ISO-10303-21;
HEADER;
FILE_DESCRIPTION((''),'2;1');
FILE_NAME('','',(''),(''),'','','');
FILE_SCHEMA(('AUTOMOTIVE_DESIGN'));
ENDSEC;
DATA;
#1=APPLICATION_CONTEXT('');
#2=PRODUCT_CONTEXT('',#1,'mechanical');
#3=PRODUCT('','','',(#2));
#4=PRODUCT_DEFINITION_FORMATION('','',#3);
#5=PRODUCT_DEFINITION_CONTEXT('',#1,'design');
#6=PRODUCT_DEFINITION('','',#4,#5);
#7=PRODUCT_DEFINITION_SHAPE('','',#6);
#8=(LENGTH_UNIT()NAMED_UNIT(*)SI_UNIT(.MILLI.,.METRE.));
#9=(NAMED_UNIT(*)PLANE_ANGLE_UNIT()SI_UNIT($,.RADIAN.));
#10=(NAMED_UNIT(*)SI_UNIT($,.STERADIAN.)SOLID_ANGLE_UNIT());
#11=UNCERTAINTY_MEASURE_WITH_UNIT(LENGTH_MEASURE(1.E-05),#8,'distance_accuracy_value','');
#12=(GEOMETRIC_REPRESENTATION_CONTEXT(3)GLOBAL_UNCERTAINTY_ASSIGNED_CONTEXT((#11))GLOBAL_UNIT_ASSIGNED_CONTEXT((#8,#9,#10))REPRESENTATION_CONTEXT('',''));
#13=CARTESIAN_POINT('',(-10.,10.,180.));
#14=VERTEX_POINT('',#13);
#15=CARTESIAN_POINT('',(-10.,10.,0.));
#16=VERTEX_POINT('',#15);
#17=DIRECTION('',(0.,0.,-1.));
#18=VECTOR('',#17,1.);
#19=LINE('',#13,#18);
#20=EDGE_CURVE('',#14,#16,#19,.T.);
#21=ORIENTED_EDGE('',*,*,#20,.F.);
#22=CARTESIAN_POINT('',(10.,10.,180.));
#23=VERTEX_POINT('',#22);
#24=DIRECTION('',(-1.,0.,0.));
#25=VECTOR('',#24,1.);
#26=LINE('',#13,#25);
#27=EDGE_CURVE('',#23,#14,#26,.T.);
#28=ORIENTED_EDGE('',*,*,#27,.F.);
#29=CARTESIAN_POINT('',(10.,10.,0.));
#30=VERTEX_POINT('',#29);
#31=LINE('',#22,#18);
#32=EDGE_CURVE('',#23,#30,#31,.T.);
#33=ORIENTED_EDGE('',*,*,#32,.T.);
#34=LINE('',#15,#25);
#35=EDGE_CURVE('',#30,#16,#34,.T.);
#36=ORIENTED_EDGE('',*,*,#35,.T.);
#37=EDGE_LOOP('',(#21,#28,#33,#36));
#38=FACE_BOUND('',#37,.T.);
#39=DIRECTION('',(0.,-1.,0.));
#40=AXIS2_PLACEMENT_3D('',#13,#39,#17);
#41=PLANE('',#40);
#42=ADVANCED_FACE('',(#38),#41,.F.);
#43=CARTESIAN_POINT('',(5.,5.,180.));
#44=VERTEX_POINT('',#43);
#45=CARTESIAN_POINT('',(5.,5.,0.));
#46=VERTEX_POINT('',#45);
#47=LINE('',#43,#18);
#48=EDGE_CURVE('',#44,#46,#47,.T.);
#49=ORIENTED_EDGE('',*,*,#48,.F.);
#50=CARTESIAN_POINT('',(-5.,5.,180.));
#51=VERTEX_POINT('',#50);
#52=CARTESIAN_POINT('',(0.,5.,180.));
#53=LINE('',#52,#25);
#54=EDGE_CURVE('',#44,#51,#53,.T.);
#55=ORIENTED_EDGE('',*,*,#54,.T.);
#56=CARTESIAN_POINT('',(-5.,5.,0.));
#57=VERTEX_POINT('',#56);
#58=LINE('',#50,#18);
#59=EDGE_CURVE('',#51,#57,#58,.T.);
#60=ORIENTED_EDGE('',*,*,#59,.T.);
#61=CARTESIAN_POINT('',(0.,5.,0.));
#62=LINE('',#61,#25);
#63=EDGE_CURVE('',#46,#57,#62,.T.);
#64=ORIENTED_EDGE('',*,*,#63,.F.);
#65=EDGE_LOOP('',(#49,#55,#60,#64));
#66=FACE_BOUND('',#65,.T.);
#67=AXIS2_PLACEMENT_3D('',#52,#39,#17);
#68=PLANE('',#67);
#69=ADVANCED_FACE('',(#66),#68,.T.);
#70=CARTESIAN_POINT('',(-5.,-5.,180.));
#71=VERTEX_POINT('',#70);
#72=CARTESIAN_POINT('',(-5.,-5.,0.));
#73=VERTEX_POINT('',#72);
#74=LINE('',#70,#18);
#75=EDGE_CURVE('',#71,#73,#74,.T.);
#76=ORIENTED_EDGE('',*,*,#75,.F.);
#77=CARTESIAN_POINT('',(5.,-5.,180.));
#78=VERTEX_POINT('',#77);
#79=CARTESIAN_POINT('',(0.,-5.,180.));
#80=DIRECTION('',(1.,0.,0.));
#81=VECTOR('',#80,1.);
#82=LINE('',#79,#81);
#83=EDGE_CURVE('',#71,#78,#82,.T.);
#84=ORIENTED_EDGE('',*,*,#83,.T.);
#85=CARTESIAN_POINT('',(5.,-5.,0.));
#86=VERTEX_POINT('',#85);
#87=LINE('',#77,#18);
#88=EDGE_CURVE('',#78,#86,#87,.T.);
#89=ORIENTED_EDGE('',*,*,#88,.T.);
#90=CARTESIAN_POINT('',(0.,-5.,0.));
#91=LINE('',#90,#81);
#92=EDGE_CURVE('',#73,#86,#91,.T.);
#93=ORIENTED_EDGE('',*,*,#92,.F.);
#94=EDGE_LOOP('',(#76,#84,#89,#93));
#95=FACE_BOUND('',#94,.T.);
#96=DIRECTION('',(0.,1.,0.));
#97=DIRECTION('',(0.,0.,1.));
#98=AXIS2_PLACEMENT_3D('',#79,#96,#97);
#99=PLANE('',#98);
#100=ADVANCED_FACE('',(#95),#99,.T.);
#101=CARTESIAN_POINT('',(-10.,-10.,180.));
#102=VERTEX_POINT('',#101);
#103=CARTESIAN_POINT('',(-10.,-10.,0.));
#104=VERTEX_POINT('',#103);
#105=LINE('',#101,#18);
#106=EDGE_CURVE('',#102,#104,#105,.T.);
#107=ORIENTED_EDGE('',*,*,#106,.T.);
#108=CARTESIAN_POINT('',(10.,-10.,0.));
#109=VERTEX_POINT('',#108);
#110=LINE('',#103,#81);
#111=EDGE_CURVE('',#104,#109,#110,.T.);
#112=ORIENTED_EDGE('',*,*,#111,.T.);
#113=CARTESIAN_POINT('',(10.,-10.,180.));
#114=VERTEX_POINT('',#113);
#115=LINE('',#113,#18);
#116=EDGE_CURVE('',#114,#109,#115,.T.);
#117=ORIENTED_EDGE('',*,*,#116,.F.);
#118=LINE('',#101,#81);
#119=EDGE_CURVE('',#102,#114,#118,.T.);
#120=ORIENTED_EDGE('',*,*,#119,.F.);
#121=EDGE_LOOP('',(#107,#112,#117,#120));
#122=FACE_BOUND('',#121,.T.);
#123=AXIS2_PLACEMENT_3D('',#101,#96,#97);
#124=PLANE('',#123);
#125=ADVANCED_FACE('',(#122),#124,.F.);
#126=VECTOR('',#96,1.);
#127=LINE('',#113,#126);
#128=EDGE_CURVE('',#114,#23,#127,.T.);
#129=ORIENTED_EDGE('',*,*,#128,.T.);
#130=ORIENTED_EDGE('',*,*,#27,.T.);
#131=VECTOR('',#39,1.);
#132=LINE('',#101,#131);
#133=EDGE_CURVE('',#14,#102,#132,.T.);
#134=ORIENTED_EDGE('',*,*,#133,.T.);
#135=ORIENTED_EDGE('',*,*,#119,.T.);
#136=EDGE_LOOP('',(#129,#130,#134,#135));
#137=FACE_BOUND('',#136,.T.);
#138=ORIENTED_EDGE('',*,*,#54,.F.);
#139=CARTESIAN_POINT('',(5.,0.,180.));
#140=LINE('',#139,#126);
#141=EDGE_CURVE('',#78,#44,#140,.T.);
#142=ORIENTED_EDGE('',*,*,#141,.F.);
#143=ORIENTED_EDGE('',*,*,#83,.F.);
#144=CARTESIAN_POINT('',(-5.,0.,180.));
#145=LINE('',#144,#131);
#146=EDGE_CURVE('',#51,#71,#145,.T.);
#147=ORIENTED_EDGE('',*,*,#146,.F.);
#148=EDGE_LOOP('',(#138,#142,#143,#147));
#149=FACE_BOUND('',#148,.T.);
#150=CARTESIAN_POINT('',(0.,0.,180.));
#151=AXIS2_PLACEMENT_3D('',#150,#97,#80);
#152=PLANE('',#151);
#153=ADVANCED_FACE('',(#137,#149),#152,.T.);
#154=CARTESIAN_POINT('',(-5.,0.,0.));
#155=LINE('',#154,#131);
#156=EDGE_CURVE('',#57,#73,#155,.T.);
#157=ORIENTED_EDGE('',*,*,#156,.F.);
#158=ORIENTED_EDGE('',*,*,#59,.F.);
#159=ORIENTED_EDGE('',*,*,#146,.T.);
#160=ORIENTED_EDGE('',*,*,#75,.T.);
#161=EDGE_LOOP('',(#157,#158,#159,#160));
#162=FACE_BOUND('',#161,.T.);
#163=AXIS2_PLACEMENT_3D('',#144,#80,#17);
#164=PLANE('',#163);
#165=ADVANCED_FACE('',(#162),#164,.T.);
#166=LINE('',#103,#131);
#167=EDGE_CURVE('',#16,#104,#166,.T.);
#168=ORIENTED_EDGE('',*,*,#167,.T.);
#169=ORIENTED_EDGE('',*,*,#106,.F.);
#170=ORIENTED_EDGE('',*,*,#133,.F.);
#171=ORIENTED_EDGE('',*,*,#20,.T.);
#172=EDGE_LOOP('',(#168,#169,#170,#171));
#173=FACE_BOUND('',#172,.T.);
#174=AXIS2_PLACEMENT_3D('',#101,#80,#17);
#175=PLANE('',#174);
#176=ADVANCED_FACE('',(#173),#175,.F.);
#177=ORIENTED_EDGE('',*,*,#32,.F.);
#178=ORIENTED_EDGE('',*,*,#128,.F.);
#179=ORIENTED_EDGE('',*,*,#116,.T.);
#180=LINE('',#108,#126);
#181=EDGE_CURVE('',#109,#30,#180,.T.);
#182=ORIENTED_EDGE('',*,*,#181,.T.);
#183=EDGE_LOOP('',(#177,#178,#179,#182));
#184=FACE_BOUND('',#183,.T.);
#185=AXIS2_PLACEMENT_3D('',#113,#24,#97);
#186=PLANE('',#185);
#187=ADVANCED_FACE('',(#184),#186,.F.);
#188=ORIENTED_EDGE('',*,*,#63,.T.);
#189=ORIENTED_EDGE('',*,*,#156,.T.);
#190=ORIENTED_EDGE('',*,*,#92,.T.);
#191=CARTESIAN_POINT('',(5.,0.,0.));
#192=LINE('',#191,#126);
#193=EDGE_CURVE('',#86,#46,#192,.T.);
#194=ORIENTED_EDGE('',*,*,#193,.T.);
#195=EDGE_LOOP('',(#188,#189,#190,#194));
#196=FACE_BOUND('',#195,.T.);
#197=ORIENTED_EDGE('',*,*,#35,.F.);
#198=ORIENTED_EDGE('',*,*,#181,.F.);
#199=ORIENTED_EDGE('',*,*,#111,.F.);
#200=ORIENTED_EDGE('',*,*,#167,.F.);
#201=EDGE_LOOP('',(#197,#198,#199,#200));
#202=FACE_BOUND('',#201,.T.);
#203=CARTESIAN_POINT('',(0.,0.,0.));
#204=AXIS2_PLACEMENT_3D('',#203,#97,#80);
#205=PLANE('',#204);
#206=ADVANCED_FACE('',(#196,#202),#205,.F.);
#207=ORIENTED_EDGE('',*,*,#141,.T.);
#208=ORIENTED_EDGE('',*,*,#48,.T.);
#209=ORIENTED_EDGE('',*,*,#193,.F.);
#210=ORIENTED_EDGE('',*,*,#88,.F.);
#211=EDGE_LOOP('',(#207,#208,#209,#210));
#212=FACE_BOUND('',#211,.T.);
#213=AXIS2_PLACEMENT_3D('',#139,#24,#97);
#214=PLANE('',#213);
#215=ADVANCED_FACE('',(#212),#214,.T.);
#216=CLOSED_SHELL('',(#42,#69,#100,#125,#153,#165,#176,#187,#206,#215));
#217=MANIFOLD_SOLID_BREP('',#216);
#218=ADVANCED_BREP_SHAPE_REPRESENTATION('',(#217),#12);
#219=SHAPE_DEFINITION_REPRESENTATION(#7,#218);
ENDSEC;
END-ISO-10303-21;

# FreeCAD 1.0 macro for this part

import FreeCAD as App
import Part
import Sketcher
Q = App.Units.Quantity

doc = App.newDocument("Part")
params = doc.addObject("Spreadsheet::Sheet", "Params")
for row, (alias, value) in enumerate([
    ("sketch1_width", "20 mm"),
    ("sketch1_width2", "10 mm"),
    ("pad1_length", "180 mm"),
], start=1):
    params.set(f"A{row}", alias)
    params.set(f"B{row}", "=" + value)
    params.setAlias(f"B{row}", alias)

body = doc.addObject("PartDesign::Body", "Body")

# Sketch on XY plane
sketch1 = doc.addObject("Sketcher::SketchObject", "Sketch")
body.addObject(sketch1)
sketch1.AttachmentSupport = (doc.XY_Plane, [""])
sketch1.MapMode = "FlatFace"
sketch1.addGeometry([
    Part.LineSegment(App.Vector(-10, 10, 0), App.Vector(-10, -10, 0)),  # 0
    Part.LineSegment(App.Vector(-10, -10, 0), App.Vector(10, -10, 0)),  # 1
    Part.LineSegment(App.Vector(10, -10, 0), App.Vector(10, 10, 0)),  # 2
    Part.LineSegment(App.Vector(10, 10, 0), App.Vector(-10, 10, 0)),  # 3
    Part.LineSegment(App.Vector(5, -5, 0), App.Vector(-5, -5, 0)),  # 4
    Part.LineSegment(App.Vector(-5, -5, 0), App.Vector(-5, 5, 0)),  # 5
    Part.LineSegment(App.Vector(-5, 5, 0), App.Vector(5, 5, 0)),  # 6
    Part.LineSegment(App.Vector(5, 5, 0), App.Vector(5, -5, 0)),  # 7
], False)
sketch1.addConstraint([
    Sketcher.Constraint("Coincident", 0, 2, 1, 1),
    Sketcher.Constraint("Coincident", 1, 2, 2, 1),
    Sketcher.Constraint("Coincident", 2, 2, 3, 1),
    Sketcher.Constraint("Coincident", 3, 2, 0, 1),
    Sketcher.Constraint("Coincident", 4, 2, 5, 1),
    Sketcher.Constraint("Coincident", 5, 2, 6, 1),
    Sketcher.Constraint("Coincident", 6, 2, 7, 1),
    Sketcher.Constraint("Coincident", 7, 2, 4, 1),
    Sketcher.Constraint("Vertical", 0),
    Sketcher.Constraint("Horizontal", 1),
    Sketcher.Constraint("Vertical", 2),
    Sketcher.Constraint("Horizontal", 3),
    Sketcher.Constraint("Horizontal", 4),
    Sketcher.Constraint("Vertical", 5),
    Sketcher.Constraint("Horizontal", 6),
    Sketcher.Constraint("Vertical", 7),
    Sketcher.Constraint("Symmetric", 0, 2, 2, 2, -1, 1),
    Sketcher.Constraint("Symmetric", 4, 2, 6, 2, -1, 1),
    Sketcher.Constraint("Equal", 3, 0),
    Sketcher.Constraint("Equal", 6, 5),
    Sketcher.Constraint("DistanceX", 1, 1, 1, 2, Q("20 mm")),
    Sketcher.Constraint("DistanceX", 4, 2, 4, 1, Q("10 mm")),
])
sketch1.setExpression("Constraints[20]", "Params.sketch1_width")
sketch1.setExpression("Constraints[21]", "Params.sketch1_width2")
pad1 = doc.addObject("PartDesign::Pad", "Pad")
body.addObject(pad1)
pad1.Profile = sketch1
pad1.setExpression("Length", "Params.pad1_length")

doc.recompute()
